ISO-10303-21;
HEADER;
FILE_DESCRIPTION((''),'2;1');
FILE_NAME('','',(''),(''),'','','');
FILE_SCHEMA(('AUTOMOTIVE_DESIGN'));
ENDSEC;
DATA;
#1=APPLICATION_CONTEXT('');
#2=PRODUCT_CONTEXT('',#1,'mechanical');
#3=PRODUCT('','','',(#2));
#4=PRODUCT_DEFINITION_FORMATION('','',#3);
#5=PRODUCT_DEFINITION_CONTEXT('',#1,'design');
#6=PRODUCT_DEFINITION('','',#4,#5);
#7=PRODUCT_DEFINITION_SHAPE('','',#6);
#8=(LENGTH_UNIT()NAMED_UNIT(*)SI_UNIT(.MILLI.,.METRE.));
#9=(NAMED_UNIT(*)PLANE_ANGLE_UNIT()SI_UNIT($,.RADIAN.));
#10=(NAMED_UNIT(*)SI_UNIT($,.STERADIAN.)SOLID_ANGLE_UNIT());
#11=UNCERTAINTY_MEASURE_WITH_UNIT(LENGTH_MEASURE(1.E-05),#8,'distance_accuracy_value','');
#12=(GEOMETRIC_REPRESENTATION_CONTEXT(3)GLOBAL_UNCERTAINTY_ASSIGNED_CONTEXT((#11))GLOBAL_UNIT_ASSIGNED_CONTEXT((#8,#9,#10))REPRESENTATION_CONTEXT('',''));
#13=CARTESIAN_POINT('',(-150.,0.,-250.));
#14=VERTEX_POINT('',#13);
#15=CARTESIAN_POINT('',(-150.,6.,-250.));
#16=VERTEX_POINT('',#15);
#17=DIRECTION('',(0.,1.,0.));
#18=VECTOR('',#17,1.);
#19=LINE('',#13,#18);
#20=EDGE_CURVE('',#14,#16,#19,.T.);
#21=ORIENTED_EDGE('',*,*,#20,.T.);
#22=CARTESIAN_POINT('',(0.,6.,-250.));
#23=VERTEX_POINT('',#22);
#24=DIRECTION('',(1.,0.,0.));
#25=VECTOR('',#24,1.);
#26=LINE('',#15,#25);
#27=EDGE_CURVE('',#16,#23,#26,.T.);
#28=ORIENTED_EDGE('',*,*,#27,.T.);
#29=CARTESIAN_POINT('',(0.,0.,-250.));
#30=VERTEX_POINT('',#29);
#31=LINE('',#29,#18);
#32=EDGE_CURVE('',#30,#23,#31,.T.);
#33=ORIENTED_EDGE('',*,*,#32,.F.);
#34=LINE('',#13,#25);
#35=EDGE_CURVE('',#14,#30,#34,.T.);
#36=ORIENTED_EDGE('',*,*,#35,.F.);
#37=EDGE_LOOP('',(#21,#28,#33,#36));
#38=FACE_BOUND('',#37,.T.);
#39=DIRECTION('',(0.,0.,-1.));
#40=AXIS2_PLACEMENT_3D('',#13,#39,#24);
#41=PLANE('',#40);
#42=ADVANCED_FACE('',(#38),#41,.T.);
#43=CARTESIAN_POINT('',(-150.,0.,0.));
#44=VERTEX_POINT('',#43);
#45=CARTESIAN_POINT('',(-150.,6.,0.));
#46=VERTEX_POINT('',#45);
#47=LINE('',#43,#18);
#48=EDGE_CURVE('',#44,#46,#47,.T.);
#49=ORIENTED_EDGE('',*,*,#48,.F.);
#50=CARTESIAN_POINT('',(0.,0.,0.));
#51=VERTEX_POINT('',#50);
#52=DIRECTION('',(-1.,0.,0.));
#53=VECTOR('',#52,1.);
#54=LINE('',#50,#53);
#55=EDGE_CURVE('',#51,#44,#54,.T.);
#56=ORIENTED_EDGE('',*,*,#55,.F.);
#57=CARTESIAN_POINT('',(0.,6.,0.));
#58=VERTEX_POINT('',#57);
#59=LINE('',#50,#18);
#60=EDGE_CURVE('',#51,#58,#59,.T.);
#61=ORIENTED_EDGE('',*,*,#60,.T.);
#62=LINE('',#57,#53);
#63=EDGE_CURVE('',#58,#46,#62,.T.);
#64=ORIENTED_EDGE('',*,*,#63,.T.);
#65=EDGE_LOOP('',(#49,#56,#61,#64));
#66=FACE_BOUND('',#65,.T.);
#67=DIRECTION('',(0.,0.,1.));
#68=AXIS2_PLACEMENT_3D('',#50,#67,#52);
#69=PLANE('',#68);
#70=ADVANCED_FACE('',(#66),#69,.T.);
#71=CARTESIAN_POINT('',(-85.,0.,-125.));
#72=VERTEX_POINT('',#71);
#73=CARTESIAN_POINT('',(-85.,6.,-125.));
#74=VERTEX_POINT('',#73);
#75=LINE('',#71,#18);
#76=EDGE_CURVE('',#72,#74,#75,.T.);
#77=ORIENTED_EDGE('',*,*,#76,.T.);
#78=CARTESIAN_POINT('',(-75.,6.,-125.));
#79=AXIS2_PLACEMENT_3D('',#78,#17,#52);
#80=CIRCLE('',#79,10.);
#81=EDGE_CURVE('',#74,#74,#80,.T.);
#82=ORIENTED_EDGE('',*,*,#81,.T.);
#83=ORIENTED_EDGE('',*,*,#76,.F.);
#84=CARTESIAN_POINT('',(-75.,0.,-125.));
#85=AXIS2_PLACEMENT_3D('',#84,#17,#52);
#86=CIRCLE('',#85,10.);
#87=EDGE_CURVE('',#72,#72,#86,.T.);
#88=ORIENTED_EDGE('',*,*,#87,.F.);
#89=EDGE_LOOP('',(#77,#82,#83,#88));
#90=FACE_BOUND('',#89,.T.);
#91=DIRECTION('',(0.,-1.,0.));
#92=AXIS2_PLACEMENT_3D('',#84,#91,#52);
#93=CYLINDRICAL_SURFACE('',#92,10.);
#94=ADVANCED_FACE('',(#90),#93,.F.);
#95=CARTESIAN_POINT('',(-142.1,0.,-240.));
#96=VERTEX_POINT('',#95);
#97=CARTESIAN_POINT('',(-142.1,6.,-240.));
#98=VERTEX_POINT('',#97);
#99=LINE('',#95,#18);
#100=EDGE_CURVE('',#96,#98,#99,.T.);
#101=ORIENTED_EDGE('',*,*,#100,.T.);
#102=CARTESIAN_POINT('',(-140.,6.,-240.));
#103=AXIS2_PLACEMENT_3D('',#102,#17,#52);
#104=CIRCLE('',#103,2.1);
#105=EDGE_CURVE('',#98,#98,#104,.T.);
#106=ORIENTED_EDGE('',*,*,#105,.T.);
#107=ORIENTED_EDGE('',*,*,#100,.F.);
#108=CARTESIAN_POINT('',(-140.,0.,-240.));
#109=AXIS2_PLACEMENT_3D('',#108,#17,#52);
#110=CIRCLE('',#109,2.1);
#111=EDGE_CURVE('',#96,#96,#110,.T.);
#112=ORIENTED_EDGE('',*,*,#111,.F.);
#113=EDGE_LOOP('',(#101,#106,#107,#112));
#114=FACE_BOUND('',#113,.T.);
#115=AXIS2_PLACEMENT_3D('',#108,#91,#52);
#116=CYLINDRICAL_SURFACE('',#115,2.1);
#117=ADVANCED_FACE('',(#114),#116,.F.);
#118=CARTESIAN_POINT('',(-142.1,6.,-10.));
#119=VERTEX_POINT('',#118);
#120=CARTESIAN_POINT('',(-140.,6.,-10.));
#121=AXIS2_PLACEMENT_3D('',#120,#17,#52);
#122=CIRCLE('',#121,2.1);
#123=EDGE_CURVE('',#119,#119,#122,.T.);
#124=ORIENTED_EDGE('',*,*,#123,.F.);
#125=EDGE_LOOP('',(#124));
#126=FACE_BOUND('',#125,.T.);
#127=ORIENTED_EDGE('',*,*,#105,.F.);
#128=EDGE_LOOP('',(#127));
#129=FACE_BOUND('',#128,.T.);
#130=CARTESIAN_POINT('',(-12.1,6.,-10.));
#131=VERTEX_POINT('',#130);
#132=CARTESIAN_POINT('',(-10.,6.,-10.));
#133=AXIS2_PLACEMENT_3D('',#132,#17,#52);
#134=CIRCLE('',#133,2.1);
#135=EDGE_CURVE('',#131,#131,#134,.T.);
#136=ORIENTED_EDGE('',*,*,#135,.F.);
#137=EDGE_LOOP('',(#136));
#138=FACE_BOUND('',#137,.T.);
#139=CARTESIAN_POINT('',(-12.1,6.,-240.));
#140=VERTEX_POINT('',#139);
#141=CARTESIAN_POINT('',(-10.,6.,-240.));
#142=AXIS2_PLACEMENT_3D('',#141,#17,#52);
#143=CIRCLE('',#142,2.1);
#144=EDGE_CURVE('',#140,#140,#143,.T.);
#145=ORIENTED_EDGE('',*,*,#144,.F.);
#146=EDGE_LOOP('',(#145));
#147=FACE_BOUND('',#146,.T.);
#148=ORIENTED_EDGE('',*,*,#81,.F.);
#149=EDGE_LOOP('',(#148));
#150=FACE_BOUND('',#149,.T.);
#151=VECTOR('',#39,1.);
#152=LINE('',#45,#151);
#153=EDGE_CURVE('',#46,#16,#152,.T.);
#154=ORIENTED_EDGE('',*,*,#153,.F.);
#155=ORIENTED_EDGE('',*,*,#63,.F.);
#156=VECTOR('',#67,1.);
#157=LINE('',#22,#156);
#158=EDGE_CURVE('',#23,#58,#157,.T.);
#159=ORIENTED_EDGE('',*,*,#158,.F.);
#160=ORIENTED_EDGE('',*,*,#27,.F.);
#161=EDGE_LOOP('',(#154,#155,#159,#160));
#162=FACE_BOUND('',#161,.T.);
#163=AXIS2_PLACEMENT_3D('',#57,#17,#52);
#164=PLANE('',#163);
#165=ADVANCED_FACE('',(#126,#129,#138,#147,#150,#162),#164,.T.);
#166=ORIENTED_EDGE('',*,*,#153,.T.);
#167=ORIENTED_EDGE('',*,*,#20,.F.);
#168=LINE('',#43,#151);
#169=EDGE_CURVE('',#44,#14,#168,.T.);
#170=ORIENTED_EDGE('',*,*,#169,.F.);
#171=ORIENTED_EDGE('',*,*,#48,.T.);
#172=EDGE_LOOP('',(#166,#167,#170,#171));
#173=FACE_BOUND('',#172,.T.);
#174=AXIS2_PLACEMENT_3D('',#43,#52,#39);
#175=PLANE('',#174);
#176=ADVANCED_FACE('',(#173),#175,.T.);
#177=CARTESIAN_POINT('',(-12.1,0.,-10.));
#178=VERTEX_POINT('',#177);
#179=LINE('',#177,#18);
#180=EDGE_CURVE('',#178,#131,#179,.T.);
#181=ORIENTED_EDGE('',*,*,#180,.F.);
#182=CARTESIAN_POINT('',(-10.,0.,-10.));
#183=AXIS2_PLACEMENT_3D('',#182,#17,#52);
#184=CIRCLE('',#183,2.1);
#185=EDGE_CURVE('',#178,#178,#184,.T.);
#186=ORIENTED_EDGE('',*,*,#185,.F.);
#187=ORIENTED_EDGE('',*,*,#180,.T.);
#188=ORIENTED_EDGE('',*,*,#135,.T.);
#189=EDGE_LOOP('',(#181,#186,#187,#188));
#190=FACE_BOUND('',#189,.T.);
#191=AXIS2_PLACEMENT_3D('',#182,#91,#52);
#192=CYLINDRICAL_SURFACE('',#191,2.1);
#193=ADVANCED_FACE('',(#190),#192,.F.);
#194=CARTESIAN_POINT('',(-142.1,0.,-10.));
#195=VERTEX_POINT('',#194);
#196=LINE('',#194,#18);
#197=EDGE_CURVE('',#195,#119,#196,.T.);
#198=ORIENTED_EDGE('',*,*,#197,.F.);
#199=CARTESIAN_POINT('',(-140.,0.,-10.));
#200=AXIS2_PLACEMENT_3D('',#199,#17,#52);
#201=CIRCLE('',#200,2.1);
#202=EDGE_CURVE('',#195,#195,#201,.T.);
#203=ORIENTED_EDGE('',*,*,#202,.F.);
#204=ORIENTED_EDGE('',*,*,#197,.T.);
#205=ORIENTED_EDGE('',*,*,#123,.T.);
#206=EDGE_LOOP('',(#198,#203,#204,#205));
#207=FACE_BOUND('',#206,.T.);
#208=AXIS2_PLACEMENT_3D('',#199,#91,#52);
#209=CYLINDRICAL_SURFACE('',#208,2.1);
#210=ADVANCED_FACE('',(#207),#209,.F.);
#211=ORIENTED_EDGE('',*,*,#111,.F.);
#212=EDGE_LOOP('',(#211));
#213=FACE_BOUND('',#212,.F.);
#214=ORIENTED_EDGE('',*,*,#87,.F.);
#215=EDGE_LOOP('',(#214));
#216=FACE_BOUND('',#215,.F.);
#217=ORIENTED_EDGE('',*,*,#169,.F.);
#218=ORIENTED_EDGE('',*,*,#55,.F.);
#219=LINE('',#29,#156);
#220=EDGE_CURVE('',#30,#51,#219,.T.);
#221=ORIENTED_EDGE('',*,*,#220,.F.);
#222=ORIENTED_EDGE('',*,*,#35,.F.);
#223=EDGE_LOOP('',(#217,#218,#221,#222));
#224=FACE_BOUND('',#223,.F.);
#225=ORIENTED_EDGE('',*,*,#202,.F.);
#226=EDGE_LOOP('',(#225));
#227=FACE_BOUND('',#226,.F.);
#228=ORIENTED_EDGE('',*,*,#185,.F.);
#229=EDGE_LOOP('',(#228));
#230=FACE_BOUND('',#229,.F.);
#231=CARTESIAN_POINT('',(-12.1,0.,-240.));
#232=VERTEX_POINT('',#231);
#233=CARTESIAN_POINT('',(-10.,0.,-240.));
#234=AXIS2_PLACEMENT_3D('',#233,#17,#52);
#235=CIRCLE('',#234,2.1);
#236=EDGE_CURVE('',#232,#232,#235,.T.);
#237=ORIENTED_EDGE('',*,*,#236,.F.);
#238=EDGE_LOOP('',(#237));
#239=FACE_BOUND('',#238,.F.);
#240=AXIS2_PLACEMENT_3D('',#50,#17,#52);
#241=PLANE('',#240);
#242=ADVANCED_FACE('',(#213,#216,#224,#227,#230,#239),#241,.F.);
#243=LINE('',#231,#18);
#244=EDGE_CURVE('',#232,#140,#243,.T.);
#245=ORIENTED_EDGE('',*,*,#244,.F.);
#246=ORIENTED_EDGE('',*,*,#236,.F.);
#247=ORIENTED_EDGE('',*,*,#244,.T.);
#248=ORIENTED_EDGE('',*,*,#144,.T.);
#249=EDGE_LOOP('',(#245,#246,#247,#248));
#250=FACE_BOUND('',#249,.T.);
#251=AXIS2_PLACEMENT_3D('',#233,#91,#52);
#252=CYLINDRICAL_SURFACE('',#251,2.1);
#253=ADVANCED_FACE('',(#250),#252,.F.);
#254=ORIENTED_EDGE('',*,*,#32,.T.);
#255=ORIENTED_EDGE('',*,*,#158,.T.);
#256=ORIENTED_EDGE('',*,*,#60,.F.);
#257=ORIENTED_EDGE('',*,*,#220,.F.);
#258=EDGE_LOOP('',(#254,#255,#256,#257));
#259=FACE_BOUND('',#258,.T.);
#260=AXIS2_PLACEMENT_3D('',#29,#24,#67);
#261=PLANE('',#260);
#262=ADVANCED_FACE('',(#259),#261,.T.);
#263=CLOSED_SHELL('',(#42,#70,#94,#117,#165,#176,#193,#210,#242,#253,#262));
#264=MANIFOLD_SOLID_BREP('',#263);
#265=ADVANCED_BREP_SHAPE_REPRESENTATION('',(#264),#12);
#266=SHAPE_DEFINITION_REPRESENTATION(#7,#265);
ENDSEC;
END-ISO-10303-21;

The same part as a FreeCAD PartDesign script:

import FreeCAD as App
import Part
import Sketcher
Q = App.Units.Quantity


def add_polygon(sketch, points):
    """Adds a closed chain of lines whose ends are joined by coincident constraints."""
    first, n = sketch.GeometryCount, len(points)
    for a, b in zip(points, points[1:] + points[:1]):
        sketch.addGeometry(Part.LineSegment(App.Vector(*a, 0), App.Vector(*b, 0)), False)
    for i in range(n):
        sketch.addConstraint(Sketcher.Constraint("Coincident", first + i, 2, first + (i + 1) % n, 1))

doc = App.newDocument("Part")
body = doc.addObject("PartDesign::Body", "Body")

# Sketch on XZ plane
sketch1 = body.newObject("Sketcher::SketchObject", "Sketch")
sketch1.AttachmentSupport = (doc.getObject("XZ_Plane"), [""])
sketch1.MapMode = "FlatFace"
add_polygon(sketch1, [(-150, 0), (0, 0), (0, -250), (-150, -250)])  # lines 0-3
sketch1.addGeometry(Part.Circle(App.Vector(-10, -240, 0), App.Vector(0, 0, 1), 2.1), False)  # 4
sketch1.addGeometry(Part.Circle(App.Vector(-140, -240, 0), App.Vector(0, 0, 1), 2.1), False)  # 5
sketch1.addGeometry(Part.Circle(App.Vector(-10, -10, 0), App.Vector(0, 0, 1), 2.1), False)  # 6
sketch1.addGeometry(Part.Circle(App.Vector(-75, -125, 0), App.Vector(0, 0, 1), 10), False)  # 7
sketch1.addGeometry(Part.Circle(App.Vector(-140, -10, 0), App.Vector(0, 0, 1), 2.1), False)  # 8
sketch1.addConstraint(Sketcher.Constraint("Horizontal", 0))
sketch1.addConstraint(Sketcher.Constraint("Vertical", 1))
sketch1.addConstraint(Sketcher.Constraint("Horizontal", 2))
sketch1.addConstraint(Sketcher.Constraint("Vertical", 3))
sketch1.addConstraint(Sketcher.Constraint("Coincident", 0, 2, -1, 1))
sketch1.addConstraint(Sketcher.Constraint("Equal", 4, 5))
sketch1.addConstraint(Sketcher.Constraint("Equal", 5, 6))
sketch1.addConstraint(Sketcher.Constraint("Equal", 6, 8))
sketch1.addConstraint(Sketcher.Constraint("Horizontal", 4, 3, 5, 3))
sketch1.addConstraint(Sketcher.Constraint("Horizontal", 6, 3, 8, 3))
sketch1.addConstraint(Sketcher.Constraint("Vertical", 4, 3, 6, 3))
sketch1.addConstraint(Sketcher.Constraint("Vertical", 5, 3, 8, 3))
sketch1.addConstraint(Sketcher.Constraint("Diameter", 7, Q("20 mm")))
sketch1.addConstraint(Sketcher.Constraint("Diameter", 4, Q("4.2 mm")))
sketch1.addConstraint(Sketcher.Constraint("DistanceX", 0, 1, 0, 2, Q("150 mm")))
sketch1.addConstraint(Sketcher.Constraint("DistanceY", 1, 2, 1, 1, Q("250 mm")))
sketch1.addConstraint(Sketcher.Constraint("DistanceX", 4, 3, -1, 1, Q("10 mm")))
sketch1.addConstraint(Sketcher.Constraint("DistanceY", 6, 3, -1, 1, Q("10 mm")))
sketch1.addConstraint(Sketcher.Constraint("DistanceY", 1, 2, 4, 3, Q("10 mm")))
sketch1.addConstraint(Sketcher.Constraint("DistanceX", 2, 2, 5, 3, Q("10 mm")))
sketch1.addConstraint(Sketcher.Constraint("DistanceX", 7, 3, -1, 1, Q("75 mm")))
sketch1.addConstraint(Sketcher.Constraint("DistanceY", 7, 3, -1, 1, Q("125 mm")))
pad1 = body.newObject("PartDesign::Pad", "Pad")
pad1.Profile = sketch1
pad1.Length = 6
pad1.Reversed = True

doc.recompute()
